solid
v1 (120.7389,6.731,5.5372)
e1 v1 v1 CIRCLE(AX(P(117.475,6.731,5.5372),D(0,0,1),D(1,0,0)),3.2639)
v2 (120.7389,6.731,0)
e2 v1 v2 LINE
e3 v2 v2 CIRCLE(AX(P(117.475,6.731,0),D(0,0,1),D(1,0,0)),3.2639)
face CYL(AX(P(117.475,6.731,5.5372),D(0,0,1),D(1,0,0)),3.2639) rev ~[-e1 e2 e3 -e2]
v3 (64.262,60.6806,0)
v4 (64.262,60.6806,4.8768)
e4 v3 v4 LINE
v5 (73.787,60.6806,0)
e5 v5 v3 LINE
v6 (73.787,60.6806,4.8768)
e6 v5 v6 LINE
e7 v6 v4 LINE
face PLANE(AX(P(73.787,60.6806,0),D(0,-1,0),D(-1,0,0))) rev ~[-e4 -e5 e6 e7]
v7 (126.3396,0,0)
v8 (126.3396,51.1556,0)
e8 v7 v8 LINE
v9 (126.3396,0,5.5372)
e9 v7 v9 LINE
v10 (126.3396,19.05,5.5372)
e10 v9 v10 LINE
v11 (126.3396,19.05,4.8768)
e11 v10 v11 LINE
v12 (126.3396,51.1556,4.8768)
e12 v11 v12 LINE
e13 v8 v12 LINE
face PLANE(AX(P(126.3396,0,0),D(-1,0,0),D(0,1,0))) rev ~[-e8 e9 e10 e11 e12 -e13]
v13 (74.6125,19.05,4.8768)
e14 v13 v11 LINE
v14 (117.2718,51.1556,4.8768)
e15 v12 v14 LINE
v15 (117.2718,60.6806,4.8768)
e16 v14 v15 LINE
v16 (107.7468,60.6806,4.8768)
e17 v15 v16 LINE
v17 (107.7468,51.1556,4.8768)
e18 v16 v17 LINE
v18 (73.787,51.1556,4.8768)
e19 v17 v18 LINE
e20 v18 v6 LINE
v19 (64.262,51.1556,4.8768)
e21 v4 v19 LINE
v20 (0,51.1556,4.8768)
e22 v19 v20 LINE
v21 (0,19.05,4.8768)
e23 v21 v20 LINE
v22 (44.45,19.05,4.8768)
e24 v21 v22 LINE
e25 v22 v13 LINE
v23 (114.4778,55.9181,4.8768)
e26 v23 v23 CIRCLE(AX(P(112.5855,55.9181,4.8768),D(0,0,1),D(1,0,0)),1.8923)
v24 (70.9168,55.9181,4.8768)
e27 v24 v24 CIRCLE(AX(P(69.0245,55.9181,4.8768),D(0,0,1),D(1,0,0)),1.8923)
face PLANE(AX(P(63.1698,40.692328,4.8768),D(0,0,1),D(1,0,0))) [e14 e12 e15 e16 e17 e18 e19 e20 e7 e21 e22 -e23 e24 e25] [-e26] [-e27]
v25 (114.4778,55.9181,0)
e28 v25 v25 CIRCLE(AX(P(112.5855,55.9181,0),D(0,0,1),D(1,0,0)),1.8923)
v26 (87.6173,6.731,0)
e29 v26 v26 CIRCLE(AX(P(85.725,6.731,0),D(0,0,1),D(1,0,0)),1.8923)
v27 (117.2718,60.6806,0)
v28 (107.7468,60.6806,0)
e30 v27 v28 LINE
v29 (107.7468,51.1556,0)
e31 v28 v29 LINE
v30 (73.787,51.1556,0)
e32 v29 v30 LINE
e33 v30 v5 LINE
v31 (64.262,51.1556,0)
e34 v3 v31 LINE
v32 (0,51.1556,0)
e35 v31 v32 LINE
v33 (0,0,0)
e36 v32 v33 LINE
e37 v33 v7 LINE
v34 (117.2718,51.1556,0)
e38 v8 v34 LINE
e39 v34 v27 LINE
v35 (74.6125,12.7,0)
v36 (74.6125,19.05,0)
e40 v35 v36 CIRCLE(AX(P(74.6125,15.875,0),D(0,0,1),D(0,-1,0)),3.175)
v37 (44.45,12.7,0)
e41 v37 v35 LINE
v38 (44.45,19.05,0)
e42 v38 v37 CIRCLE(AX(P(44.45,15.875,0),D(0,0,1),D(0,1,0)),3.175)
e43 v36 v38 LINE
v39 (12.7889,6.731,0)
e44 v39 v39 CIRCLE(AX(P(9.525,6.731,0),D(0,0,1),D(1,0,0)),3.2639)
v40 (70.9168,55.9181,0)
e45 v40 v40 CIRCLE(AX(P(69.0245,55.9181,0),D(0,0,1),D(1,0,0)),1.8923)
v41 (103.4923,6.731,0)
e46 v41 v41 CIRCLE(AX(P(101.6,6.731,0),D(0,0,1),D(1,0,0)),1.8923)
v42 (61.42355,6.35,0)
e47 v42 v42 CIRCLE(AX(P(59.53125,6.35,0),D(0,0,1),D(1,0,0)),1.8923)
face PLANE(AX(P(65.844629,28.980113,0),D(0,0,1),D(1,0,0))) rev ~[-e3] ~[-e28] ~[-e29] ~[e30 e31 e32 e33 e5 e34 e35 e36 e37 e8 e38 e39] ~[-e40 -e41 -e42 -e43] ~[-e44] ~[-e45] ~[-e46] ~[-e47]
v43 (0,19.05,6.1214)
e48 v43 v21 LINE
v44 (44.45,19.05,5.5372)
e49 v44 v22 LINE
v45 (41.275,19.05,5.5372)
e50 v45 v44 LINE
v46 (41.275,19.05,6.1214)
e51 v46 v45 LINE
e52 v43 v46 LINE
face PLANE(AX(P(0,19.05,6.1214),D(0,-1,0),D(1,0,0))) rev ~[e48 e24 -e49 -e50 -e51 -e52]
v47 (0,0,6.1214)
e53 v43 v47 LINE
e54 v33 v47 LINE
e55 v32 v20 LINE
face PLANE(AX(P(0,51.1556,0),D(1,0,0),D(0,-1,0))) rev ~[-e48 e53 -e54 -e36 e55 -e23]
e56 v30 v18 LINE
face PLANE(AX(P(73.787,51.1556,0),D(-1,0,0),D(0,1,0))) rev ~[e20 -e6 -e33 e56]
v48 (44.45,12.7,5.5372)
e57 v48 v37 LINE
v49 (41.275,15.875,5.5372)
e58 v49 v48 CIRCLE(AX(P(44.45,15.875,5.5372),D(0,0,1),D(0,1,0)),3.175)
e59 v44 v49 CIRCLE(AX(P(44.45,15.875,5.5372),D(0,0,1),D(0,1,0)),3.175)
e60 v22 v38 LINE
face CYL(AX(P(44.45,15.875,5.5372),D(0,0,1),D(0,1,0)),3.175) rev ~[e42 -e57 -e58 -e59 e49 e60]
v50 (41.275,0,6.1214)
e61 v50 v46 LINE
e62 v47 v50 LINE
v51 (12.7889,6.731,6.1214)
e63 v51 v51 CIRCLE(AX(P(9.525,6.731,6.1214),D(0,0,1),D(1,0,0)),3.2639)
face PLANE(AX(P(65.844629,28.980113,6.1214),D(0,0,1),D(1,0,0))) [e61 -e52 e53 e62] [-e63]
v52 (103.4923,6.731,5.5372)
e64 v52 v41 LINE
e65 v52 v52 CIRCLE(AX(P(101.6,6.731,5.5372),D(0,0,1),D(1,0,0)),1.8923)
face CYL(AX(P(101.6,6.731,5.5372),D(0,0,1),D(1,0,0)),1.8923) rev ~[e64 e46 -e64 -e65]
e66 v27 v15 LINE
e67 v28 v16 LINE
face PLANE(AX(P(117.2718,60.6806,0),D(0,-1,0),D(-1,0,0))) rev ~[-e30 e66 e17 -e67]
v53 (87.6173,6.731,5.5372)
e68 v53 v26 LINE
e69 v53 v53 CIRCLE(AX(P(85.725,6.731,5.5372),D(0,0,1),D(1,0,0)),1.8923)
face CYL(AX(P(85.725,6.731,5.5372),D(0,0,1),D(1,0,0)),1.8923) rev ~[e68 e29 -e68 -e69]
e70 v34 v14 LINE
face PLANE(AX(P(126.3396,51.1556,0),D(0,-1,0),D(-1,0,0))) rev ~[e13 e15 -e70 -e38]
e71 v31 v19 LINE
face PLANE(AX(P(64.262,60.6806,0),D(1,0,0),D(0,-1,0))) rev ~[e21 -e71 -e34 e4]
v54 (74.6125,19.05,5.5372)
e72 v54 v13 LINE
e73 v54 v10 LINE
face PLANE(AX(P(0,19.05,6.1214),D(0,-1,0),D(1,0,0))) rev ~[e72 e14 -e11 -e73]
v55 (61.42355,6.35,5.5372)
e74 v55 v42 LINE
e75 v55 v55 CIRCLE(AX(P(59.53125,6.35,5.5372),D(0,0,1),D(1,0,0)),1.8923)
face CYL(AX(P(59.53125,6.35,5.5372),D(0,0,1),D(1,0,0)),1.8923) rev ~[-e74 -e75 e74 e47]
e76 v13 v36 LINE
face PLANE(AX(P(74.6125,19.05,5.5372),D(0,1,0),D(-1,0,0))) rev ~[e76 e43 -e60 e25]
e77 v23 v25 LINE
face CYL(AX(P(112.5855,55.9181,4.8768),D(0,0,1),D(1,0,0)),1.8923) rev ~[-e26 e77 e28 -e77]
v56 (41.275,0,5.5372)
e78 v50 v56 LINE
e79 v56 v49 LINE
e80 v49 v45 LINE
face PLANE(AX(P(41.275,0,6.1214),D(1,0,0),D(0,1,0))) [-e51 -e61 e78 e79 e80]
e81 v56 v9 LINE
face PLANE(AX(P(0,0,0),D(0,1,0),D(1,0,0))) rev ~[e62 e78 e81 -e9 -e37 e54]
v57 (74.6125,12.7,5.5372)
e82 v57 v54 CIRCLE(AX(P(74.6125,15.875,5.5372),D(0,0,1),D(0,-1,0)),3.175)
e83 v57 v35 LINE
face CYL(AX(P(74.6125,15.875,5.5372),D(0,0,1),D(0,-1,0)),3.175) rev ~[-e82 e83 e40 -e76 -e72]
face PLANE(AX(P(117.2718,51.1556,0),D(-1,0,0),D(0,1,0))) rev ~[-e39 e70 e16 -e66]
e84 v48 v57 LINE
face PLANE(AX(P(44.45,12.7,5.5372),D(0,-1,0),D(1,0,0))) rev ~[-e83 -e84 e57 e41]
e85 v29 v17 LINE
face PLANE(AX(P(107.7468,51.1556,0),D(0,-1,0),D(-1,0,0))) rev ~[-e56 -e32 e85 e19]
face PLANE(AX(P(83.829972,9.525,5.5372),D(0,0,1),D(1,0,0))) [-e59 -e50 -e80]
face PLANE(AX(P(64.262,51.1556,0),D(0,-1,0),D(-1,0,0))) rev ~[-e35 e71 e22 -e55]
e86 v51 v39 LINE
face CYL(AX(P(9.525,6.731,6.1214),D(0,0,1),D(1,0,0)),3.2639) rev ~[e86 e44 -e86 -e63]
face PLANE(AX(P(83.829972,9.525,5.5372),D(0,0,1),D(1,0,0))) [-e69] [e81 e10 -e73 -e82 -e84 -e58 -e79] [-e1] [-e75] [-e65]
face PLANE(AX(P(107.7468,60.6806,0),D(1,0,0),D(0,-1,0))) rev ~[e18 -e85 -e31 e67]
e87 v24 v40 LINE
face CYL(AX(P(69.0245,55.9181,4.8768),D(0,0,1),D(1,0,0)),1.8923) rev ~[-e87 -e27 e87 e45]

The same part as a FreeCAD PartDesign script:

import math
import FreeCAD as App
import Part
import Sketcher
Q = App.Units.Quantity


def add_polygon(sketch, points):
    """Adds a closed chain of lines whose ends are joined by coincident constraints."""
    first, n = sketch.GeometryCount, len(points)
    for a, b in zip(points, points[1:] + points[:1]):
        sketch.addGeometry(Part.LineSegment(App.Vector(*a, 0), App.Vector(*b, 0)), False)
    for i in range(n):
        sketch.addConstraint(Sketcher.Constraint("Coincident", first + i, 2, first + (i + 1) % n, 1))

doc = App.newDocument("Part")
params = doc.addObject("Spreadsheet::Sheet", "Params")
for row, (alias, value) in enumerate([
    ("sketch1_width", "2.53 in"),
    ("sketch1_width2", "4.974 in"),
    ("sketch1_width3", "0.357 in"),
    ("sketch1_width4", "0.375 in"),
    ("sketch1_height", "2.014 in"),
    ("pad1_length", "0.241 in"),
    ("sketch2_width", "4.974 in"),
    ("pocket1_length", "0.049 in"),
    ("sketch3_height", "0.75 in"),
    ("pocket2_length", "0.023 in"),
    ("sketch4_radius", "0.125 in"),
    ("sketch4_width", "1.1875 in"),
    ("sketch5_diameter", "0.149 in"),
    ("sketch6_diameter", "0.149 in"),
    ("sketch7_diameter", "0.257 in"),
    ("sketch8_diameter", "0.149 in"),
    ("sketch9_diameter", "0.257 in"),
], start=1):
    params.set(f"A{row}", alias)
    params.set(f"B{row}", "=" + value)
    params.setAlias(f"B{row}", alias)

body = doc.addObject("PartDesign::Body", "Body")

# Sketch on XY plane
sketch1 = body.newObject("Sketcher::SketchObject", "Sketch")
sketch1.AttachmentSupport = (doc.getObject("XY_Plane"), [""])
sketch1.MapMode = "FlatFace"
add_polygon(sketch1, [(0, 51), (0, 0), (126, 0), (126, 51), (117, 51), (117, 61), (108, 61), (108, 51), (74, 51), (74, 61), (64, 61), (64, 51)])  # lines 0-11
sketch1.addConstraint([
    Sketcher.Constraint("Vertical", 0),
    Sketcher.Constraint("Horizontal", 1),
    Sketcher.Constraint("Vertical", 2),
    Sketcher.Constraint("Horizontal", 3),
    Sketcher.Constraint("Vertical", 4),
    Sketcher.Constraint("Horizontal", 5),
    Sketcher.Constraint("Vertical", 6),
    Sketcher.Constraint("Horizontal", 7),
    Sketcher.Constraint("Vertical", 8),
    Sketcher.Constraint("Horizontal", 9),
    Sketcher.Constraint("Vertical", 10),
    Sketcher.Constraint("Horizontal", 11),
    Sketcher.Constraint("Coincident", 0, 2, -1, 1),
    Sketcher.Constraint("Horizontal", 3, 2, 6, 2),
    Sketcher.Constraint("Horizontal", 5, 2, 8, 2),
    Sketcher.Constraint("Horizontal", 7, 2, 10, 2),
    Sketcher.Constraint("Equal", 5, 9),
    Sketcher.Constraint("Equal", 9, 4),
    Sketcher.Constraint("DistanceX", 11, 2, 11, 1, Q("2.53 in")),
    Sketcher.Constraint("DistanceX", 1, 1, 1, 2, Q("4.974 in")),
    Sketcher.Constraint("DistanceX", 3, 2, 3, 1, Q("0.357 in")),
    Sketcher.Constraint("DistanceX", 5, 2, 5, 1, Q("0.375 in")),
    Sketcher.Constraint("DistanceY", 0, 2, 0, 1, Q("2.014 in")),
])
sketch1.setExpression("Constraints[30]", "Params.sketch1_width")
sketch1.setExpression("Constraints[31]", "Params.sketch1_width2")
sketch1.setExpression("Constraints[32]", "Params.sketch1_width3")
sketch1.setExpression("Constraints[33]", "Params.sketch1_width4")
sketch1.setExpression("Constraints[34]", "Params.sketch1_height")
pad1 = body.newObject("PartDesign::Pad", "Pad")
pad1.Profile = sketch1
pad1.setExpression("Length", "Params.pad1_length")

# Sketch on XY plane
sketch2 = body.newObject("Sketcher::SketchObject", "Sketch001")
sketch2.AttachmentSupport = (doc.getObject("XY_Plane"), [""])
sketch2.MapMode = "FlatFace"
sketch2.AttachmentOffset = App.Placement(App.Vector(0, 0, 0.241 * 25.4), App.Rotation())
add_polygon(sketch2, [(0, 62), (0, 19), (126, 19), (126, 62)])  # lines 0-3
sketch2.addConstraint([
    Sketcher.Constraint("Vertical", 0),
    Sketcher.Constraint("Horizontal", 1),
    Sketcher.Constraint("Vertical", 2),
    Sketcher.Constraint("Horizontal", 3),
    Sketcher.Constraint("PointOnObject", 0, 2, -2),
    Sketcher.Constraint("DistanceX", 1, 1, 1, 2, Q("4.974 in")),
    Sketcher.Constraint("DistanceY", -1, 1, 0, 2, Q("0.75 in")),
    Sketcher.Constraint("DistanceY", 0, 2, 0, 1, Q("43.284657 mm")),
])
sketch2.setExpression("Constraints[9]", "Params.sketch2_width")
pocket1 = body.newObject("PartDesign::Pocket", "Pocket")
pocket1.Profile = sketch2
pocket1.setExpression("Length", "Params.pocket1_length")

# Sketch on XY plane
sketch3 = body.newObject("Sketcher::SketchObject", "Sketch002")
sketch3.AttachmentSupport = (doc.getObject("XY_Plane"), [""])
sketch3.MapMode = "FlatFace"
sketch3.AttachmentOffset = App.Placement(App.Vector(0, 0, 0.241 * 25.4), App.Rotation())
add_polygon(sketch3, [(41, 19), (41, 0), (126, 0), (126, 19)])  # lines 0-3
sketch3.addConstraint([
    Sketcher.Constraint("Vertical", 0),
    Sketcher.Constraint("Horizontal", 1),
    Sketcher.Constraint("Vertical", 2),
    Sketcher.Constraint("Horizontal", 3),
    Sketcher.Constraint("PointOnObject", 0, 2, -1),
    Sketcher.Constraint("DistanceY", 0, 2, 0, 1, Q("0.75 in")),
    Sketcher.Constraint("DistanceX", -1, 1, 0, 2, Q("1.625 in")),
    Sketcher.Constraint("DistanceX", 1, 1, 1, 2, Q("85.109944 mm")),
])
sketch3.setExpression("Constraints[9]", "Params.sketch3_height")
pocket2 = body.newObject("PartDesign::Pocket", "Pocket001")
pocket2.Profile = sketch3
pocket2.setExpression("Length", "Params.pocket2_length")

# Sketch on XY plane
sketch4 = body.newObject("Sketcher::SketchObject", "Sketch003")
sketch4.AttachmentSupport = (doc.getObject("XY_Plane"), [""])
sketch4.MapMode = "FlatFace"
sketch4.AttachmentOffset = App.Placement(App.Vector(0, 0, 0.218 * 25.4), App.Rotation())
sketch4.addGeometry([
    Part.LineSegment(App.Vector(74.6, 19.1, 0), App.Vector(44.5, 19.1, 0)),
    Part.ArcOfCircle(Part.Circle(App.Vector(44.5, 15.9, 0), App.Vector(0, 0, 1), 3.2), math.radians(90), math.radians(270)),
    Part.LineSegment(App.Vector(44.5, 12.7, 0), App.Vector(74.6, 12.7, 0)),
    Part.ArcOfCircle(Part.Circle(App.Vector(74.6, 15.9, 0), App.Vector(0, 0, 1), 3.2), math.radians(-90), math.radians(90)),
], False)
sketch4.addConstraint([
    Sketcher.Constraint("Tangent", 0, 2, 1, 1),
    Sketcher.Constraint("Tangent", 1, 2, 2, 1),
    Sketcher.Constraint("Tangent", 2, 2, 3, 1),
    Sketcher.Constraint("Tangent", 3, 2, 0, 1),
    Sketcher.Constraint("Horizontal", 0),
    Sketcher.Constraint("Horizontal", 2),
    Sketcher.Constraint("Radius", 1, Q("0.125 in")),
    Sketcher.Constraint("DistanceY", -1, 1, 1, 2, Q("0.5 in")),
    Sketcher.Constraint("DistanceX", 0, 2, 0, 1, Q("1.1875 in")),
    Sketcher.Constraint("DistanceX", -1, 1, 1, 3, Q("1.75 in")),
])
sketch4.setExpression("Constraints[6]", "Params.sketch4_radius")
sketch4.setExpression("Constraints[8]", "Params.sketch4_width")
pocket3 = body.newObject("PartDesign::Pocket", "Pocket002")
pocket3.Profile = sketch4
pocket3.Type = "ThroughAll"

# Sketch on XY plane
sketch5 = body.newObject("Sketcher::SketchObject", "Sketch004")
sketch5.AttachmentSupport = (doc.getObject("XY_Plane"), [""])
sketch5.MapMode = "FlatFace"
sketch5.AttachmentOffset = App.Placement(App.Vector(0, 0, 0.192 * 25.4), App.Rotation())
sketch5.addGeometry([
    Part.Circle(App.Vector(69, 55.9, 0), App.Vector(0, 0, 1), 1.9),
    Part.Circle(App.Vector(112.6, 55.9, 0), App.Vector(0, 0, 1), 1.9),
], False)
sketch5.addConstraint([
    Sketcher.Constraint("Equal", 0, 1),
    Sketcher.Constraint("Horizontal", 0, 3, 1, 3),
    Sketcher.Constraint("Diameter", 0, Q("0.149 in")),
    Sketcher.Constraint("DistanceX", 0, 3, 1, 3, Q("1.715 in")),
    Sketcher.Constraint("DistanceX", -1, 1, 0, 3, Q("2.7175 in")),
    Sketcher.Constraint("DistanceY", -1, 1, 0, 3, Q("2.2015 in")),
])
sketch5.setExpression("Constraints[2]", "Params.sketch5_diameter")
pocket4 = body.newObject("PartDesign::Pocket", "Pocket003")
pocket4.Profile = sketch5
pocket4.Type = "ThroughAll"

# Sketch on XY plane
sketch6 = body.newObject("Sketcher::SketchObject", "Sketch005")
sketch6.AttachmentSupport = (doc.getObject("XY_Plane"), [""])
sketch6.MapMode = "FlatFace"
sketch6.AttachmentOffset = App.Placement(App.Vector(0, 0, 0.218 * 25.4), App.Rotation())
sketch6.addGeometry(Part.Circle(App.Vector(59.5, 6.3, 0), App.Vector(0, 0, 1), 1.9), False)
sketch6.addConstraint([
    Sketcher.Constraint("Diameter", 0, Q("0.149 in")),
    Sketcher.Constraint("DistanceY", -1, 1, 0, 3, Q("0.25 in")),
    Sketcher.Constraint("DistanceX", -1, 1, 0, 3, Q("2.34375 in")),
])
sketch6.setExpression("Constraints[0]", "Params.sketch6_diameter")
pocket5 = body.newObject("PartDesign::Pocket", "Pocket004")
pocket5.Profile = sketch6
pocket5.Type = "ThroughAll"

# Sketch on XY plane
sketch7 = body.newObject("Sketcher::SketchObject", "Sketch006")
sketch7.AttachmentSupport = (doc.getObject("XY_Plane"), [""])
sketch7.MapMode = "FlatFace"
sketch7.AttachmentOffset = App.Placement(App.Vector(0, 0, 0.241 * 25.4), App.Rotation())
sketch7.addGeometry(Part.Circle(App.Vector(9.5, 6.7, 0), App.Vector(0, 0, 1), 3.3), False)
sketch7.addConstraint([
    Sketcher.Constraint("Diameter", 0, Q("0.257 in")),
    Sketcher.Constraint("DistanceX", -1, 1, 0, 3, Q("0.375 in")),
    Sketcher.Constraint("DistanceY", -1, 1, 0, 3, Q("0.265 in")),
])
sketch7.setExpression("Constraints[0]", "Params.sketch7_diameter")
pocket6 = body.newObject("PartDesign::Pocket", "Pocket005")
pocket6.Profile = sketch7
pocket6.Type = "ThroughAll"

# Sketch on XY plane
sketch8 = body.newObject("Sketcher::SketchObject", "Sketch007")
sketch8.AttachmentSupport = (doc.getObject("XY_Plane"), [""])
sketch8.MapMode = "FlatFace"
sketch8.AttachmentOffset = App.Placement(App.Vector(0, 0, 0.218 * 25.4), App.Rotation())
sketch8.addGeometry([
    Part.Circle(App.Vector(85.7, 6.7, 0), App.Vector(0, 0, 1), 1.9),
    Part.Circle(App.Vector(101.6, 6.7, 0), App.Vector(0, 0, 1), 1.9),
], False)
sketch8.addConstraint([
    Sketcher.Constraint("Equal", 0, 1),
    Sketcher.Constraint("Horizontal", 0, 3, 1, 3),
    Sketcher.Constraint("Diameter", 0, Q("0.149 in")),
    Sketcher.Constraint("DistanceX", -1, 1, 1, 3, Q("4 in")),
    Sketcher.Constraint("DistanceX", -1, 1, 0, 3, Q("3.375 in")),
    Sketcher.Constraint("DistanceY", -1, 1, 0, 3, Q("0.265 in")),
])
sketch8.setExpression("Constraints[2]", "Params.sketch8_diameter")
pocket7 = body.newObject("PartDesign::Pocket", "Pocket006")
pocket7.Profile = sketch8
pocket7.Type = "ThroughAll"

# Sketch on XY plane
sketch9 = body.newObject("Sketcher::SketchObject", "Sketch008")
sketch9.AttachmentSupport = (doc.getObject("XY_Plane"), [""])
sketch9.MapMode = "FlatFace"
sketch9.AttachmentOffset = App.Placement(App.Vector(0, 0, 0.218 * 25.4), App.Rotation())
sketch9.addGeometry(Part.Circle(App.Vector(117.5, 6.7, 0), App.Vector(0, 0, 1), 3.3), False)
sketch9.addConstraint([
    Sketcher.Constraint("Diameter", 0, Q("0.257 in")),
    Sketcher.Constraint("DistanceX", -1, 1, 0, 3, Q("4.625 in")),
    Sketcher.Constraint("DistanceY", -1, 1, 0, 3, Q("0.265 in")),
])
sketch9.setExpression("Constraints[0]", "Params.sketch9_diameter")
pocket8 = body.newObject("PartDesign::Pocket", "Pocket007")
pocket8.Profile = sketch9
pocket8.Type = "ThroughAll"

doc.recompute()
